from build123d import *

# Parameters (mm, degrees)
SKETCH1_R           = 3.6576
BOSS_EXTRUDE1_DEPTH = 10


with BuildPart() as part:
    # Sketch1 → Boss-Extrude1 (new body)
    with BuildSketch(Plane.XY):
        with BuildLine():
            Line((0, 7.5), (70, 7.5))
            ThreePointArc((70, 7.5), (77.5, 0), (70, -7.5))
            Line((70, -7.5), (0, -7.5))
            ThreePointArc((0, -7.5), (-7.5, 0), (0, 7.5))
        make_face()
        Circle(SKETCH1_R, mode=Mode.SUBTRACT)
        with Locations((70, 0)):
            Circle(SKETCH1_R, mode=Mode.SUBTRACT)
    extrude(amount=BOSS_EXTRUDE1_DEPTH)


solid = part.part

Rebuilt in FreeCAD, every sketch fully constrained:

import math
import FreeCAD as App
import Part
import Sketcher

V = App.Vector
Q = App.Units.Quantity

doc = App.newDocument("Part")
body = doc.addObject("PartDesign::Body", "Body")

# Sketch on XY plane
sketch1 = doc.addObject("Sketcher::SketchObject", "Sketch")
body.addObject(sketch1)
sketch1.AttachmentSupport = (doc.XY_Plane, [""])
sketch1.MapMode = "FlatFace"
sketch1.addGeometry(Part.LineSegment(V(70, 7.5, 0), V(0, 7.5, 0)), False)
sketch1.addGeometry(Part.ArcOfCircle(Part.Circle(V(0, 0, 0), V(0, 0, 1), 7.5), math.radians(90), math.radians(270)), False)
sketch1.addGeometry(Part.LineSegment(V(0, -7.5, 0), V(70, -7.5, 0)), False)
sketch1.addGeometry(Part.ArcOfCircle(Part.Circle(V(70, 0, 0), V(0, 0, 1), 7.5), math.radians(-90), math.radians(90)), False)
sketch1.addGeometry(Part.Circle(V(70, 0, 0), V(0, 0, 1), 3.6576), False)
sketch1.addGeometry(Part.Circle(V(0, 0, 0), V(0, 0, 1), 3.6576), False)
sketch1.addConstraint(Sketcher.Constraint("Tangent", 0, 2, 1, 1))
sketch1.addConstraint(Sketcher.Constraint("Tangent", 1, 2, 2, 1))
sketch1.addConstraint(Sketcher.Constraint("Tangent", 2, 2, 3, 1))
sketch1.addConstraint(Sketcher.Constraint("Tangent", 3, 2, 0, 1))
sketch1.addConstraint(Sketcher.Constraint("Horizontal", 0))
sketch1.addConstraint(Sketcher.Constraint("Horizontal", 2))
sketch1.addConstraint(Sketcher.Constraint("Coincident", 1, 3, -1, 1))
sketch1.addConstraint(Sketcher.Constraint("Coincident", 5, 3, -1, 1))
sketch1.addConstraint(Sketcher.Constraint("Coincident", 4, 3, 3, 3))
sketch1.addConstraint(Sketcher.Constraint("Equal", 4, 5))
sketch1.addConstraint(Sketcher.Constraint("Radius", 1, Q("7.5 mm")))
sketch1.addConstraint(Sketcher.Constraint("DistanceX", 0, 2, 0, 1, Q("70 mm")))
sketch1.addConstraint(Sketcher.Constraint("Diameter", 4, Q("7.3152 mm")))
pad1 = doc.addObject("PartDesign::Pad", "Pad")
body.addObject(pad1)
pad1.Profile = sketch1
pad1.Length = 10

doc.recompute()
